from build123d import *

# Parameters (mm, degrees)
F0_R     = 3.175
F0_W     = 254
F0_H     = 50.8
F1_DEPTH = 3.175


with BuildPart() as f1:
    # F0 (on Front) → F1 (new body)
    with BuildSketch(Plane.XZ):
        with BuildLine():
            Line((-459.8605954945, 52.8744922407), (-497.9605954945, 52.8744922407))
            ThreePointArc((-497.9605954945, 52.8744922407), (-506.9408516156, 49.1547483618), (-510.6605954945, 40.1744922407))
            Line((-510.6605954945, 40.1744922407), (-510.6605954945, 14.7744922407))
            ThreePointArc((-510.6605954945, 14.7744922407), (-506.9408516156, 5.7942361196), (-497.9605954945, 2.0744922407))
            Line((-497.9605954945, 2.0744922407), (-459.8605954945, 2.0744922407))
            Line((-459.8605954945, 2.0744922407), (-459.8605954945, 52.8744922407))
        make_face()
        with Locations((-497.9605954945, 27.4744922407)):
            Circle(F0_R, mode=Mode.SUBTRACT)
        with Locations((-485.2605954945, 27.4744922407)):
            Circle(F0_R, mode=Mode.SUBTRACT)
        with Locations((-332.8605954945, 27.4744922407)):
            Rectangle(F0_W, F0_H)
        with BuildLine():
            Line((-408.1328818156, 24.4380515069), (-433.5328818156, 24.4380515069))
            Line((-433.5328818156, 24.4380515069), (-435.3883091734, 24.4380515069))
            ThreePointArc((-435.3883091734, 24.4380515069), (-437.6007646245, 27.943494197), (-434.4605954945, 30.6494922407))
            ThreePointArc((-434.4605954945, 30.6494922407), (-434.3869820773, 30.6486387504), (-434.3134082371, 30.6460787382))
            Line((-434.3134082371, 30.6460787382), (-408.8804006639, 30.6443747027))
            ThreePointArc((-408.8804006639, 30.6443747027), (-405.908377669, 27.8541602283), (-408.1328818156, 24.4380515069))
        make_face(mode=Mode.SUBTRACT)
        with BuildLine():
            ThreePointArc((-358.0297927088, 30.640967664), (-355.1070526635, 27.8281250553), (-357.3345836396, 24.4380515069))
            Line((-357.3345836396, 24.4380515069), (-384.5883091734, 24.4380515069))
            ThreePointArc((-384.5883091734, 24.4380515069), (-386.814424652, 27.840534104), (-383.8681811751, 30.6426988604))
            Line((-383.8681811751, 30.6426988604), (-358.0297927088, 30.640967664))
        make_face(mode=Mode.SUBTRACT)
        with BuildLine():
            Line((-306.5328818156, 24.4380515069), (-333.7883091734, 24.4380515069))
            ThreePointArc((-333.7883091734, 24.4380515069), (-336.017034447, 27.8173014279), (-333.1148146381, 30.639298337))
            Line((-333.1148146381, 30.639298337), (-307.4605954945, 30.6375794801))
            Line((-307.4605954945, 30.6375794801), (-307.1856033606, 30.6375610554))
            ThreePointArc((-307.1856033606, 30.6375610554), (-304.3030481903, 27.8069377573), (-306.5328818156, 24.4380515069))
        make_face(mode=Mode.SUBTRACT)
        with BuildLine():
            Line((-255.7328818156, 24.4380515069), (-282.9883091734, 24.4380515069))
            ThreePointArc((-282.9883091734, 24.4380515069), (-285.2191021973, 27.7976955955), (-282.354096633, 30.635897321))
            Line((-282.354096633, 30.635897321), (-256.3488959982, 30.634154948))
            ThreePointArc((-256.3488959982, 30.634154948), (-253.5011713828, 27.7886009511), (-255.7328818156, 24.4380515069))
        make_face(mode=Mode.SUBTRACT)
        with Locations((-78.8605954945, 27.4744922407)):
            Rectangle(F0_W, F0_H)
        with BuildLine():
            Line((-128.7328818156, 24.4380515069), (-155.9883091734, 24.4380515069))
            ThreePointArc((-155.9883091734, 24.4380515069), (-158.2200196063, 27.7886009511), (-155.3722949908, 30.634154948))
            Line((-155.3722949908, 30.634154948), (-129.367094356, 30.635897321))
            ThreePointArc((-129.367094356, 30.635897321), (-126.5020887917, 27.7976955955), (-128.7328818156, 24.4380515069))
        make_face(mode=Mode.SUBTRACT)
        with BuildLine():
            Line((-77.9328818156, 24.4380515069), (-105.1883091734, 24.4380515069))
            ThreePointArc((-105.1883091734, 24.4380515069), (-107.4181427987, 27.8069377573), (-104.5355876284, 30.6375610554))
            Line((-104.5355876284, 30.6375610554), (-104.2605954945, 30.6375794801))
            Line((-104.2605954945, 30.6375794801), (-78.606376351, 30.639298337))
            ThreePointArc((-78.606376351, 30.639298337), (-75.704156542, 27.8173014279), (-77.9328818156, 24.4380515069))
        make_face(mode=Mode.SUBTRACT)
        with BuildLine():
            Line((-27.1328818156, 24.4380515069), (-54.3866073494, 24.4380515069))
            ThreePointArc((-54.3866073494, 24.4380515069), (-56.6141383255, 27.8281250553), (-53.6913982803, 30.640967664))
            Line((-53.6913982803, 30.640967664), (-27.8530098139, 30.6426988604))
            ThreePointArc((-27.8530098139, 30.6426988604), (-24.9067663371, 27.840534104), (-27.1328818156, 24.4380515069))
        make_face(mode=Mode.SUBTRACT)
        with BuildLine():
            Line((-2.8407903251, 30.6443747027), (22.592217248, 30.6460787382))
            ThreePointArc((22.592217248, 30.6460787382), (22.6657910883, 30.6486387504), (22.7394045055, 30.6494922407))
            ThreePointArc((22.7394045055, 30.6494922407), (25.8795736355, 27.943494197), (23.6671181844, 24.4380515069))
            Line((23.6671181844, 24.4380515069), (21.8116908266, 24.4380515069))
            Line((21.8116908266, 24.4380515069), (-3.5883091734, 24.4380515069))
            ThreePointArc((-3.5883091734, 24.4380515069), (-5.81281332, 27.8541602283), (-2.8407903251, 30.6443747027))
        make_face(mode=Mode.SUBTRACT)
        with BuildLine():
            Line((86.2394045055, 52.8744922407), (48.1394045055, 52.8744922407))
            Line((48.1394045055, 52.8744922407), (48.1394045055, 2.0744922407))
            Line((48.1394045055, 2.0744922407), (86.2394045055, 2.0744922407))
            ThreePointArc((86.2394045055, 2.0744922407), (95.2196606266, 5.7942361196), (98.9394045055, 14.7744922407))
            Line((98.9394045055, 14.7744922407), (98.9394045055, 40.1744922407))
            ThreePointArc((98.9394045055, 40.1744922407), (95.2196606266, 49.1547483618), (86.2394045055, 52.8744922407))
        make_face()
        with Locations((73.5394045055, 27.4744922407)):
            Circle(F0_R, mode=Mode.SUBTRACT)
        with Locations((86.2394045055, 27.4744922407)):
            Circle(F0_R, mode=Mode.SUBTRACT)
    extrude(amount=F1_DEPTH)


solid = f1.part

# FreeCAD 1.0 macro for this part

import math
import FreeCAD as App
import Part
import Sketcher

V = App.Vector
Q = App.Units.Quantity

doc = App.newDocument("Part")
body = doc.addObject("PartDesign::Body", "Body")

sketch1 = body.newObject("Sketcher::SketchObject", "Sketch")
sketch1.AttachmentSupport = (doc.getObject("XZ_Plane"), [""])
sketch1.MapMode = "FlatFace"
sketch1.addGeometry(Part.ArcOfCircle(Part.Circle(V(-497.96, 40.17, 0), V(0, 0, 1), 12.7), math.radians(90), math.radians(180)), False)
sketch1.addGeometry(Part.LineSegment(V(-510.66, 40.17, 0), V(-510.66, 14.77, 0)), False)
sketch1.addGeometry(Part.ArcOfCircle(Part.Circle(V(-497.96, 14.77, 0), V(0, 0, 1), 12.7), math.radians(180), math.radians(270)), False)
sketch1.addGeometry(Part.LineSegment(V(-497.96, 2.07, 0), V(86.24, 2.07, 0)), False)
sketch1.addGeometry(Part.ArcOfCircle(Part.Circle(V(86.24, 14.77, 0), V(0, 0, 1), 12.7), math.radians(-90), math.radians(0)), False)
sketch1.addGeometry(Part.LineSegment(V(98.94, 14.77, 0), V(98.94, 40.17, 0)), False)
sketch1.addGeometry(Part.ArcOfCircle(Part.Circle(V(86.24, 40.17, 0), V(0, 0, 1), 12.7), math.radians(0), math.radians(90)), False)
sketch1.addGeometry(Part.LineSegment(V(86.24, 52.87, 0), V(-497.96, 52.87, 0)), False)
sketch1.addGeometry(Part.Circle(V(-497.96, 27.47, 0), V(0, 0, 1), 3.17), False)
sketch1.addGeometry(Part.Circle(V(-485.26, 27.47, 0), V(0, 0, 1), 3.17), False)
sketch1.addGeometry(Part.Circle(V(73.54, 27.47, 0), V(0, 0, 1), 3.17), False)
sketch1.addGeometry(Part.Circle(V(86.24, 27.47, 0), V(0, 0, 1), 3.17), False)
sketch1.addGeometry(Part.ArcOfCircle(Part.Circle(V(-409.06, 27.47, 0), V(0, 0, 1), 3.17), math.radians(-73), math.radians(87)), False)
sketch1.addGeometry(Part.LineSegment(V(-408.13, 24.44, 0), V(-435.39, 24.44, 0)), False)
sketch1.addGeometry(Part.ArcOfCircle(Part.Circle(V(-434.46, 27.47, 0), V(0, 0, 1), 3.17), math.radians(90), math.radians(253)), False)
sketch1.addGeometry(Part.ArcOfCircle(Part.Circle(V(-434.46, 27.47, 0), V(0, 0, 1), 3.17), math.radians(87.34), math.radians(90)), False)
sketch1.addGeometry(Part.LineSegment(V(-434.31, 30.65, 0), V(-408.88, 30.64, 0)), False)
sketch1.addGeometry(Part.LineSegment(V(-383.87, 30.64, 0), V(-358.03, 30.64, 0)), False)
sketch1.addGeometry(Part.ArcOfCircle(Part.Circle(V(-358.26, 27.47, 0), V(0, 0, 1), 3.17), math.radians(-73), math.radians(86)), False)
sketch1.addGeometry(Part.LineSegment(V(-357.33, 24.44, 0), V(-384.59, 24.44, 0)), False)
sketch1.addGeometry(Part.ArcOfCircle(Part.Circle(V(-383.66, 27.47, 0), V(0, 0, 1), 3.17), math.radians(94), math.radians(253)), False)
sketch1.addGeometry(Part.ArcOfCircle(Part.Circle(V(-307.46, 27.47, 0), V(0, 0, 1), 3.17), math.radians(-73), math.radians(85)), False)
sketch1.addGeometry(Part.LineSegment(V(-306.53, 24.44, 0), V(-333.79, 24.44, 0)), False)
sketch1.addGeometry(Part.ArcOfCircle(Part.Circle(V(-332.86, 27.47, 0), V(0, 0, 1), 3.17), math.radians(95), math.radians(253)), False)
sketch1.addGeometry(Part.LineSegment(V(-333.11, 30.64, 0), V(-307.46, 30.64, 0)), False)
sketch1.addGeometry(Part.LineSegment(V(-307.46, 30.64, 0), V(-307.19, 30.64, 0)), False)
sketch1.addGeometry(Part.ArcOfCircle(Part.Circle(V(-256.66, 27.47, 0), V(0, 0, 1), 3.17), math.radians(-73), math.radians(84)), False)
sketch1.addGeometry(Part.LineSegment(V(-255.73, 24.44, 0), V(-282.99, 24.44, 0)), False)
sketch1.addGeometry(Part.ArcOfCircle(Part.Circle(V(-282.06, 27.47, 0), V(0, 0, 1), 3.17), math.radians(95), math.radians(253)), False)
sketch1.addGeometry(Part.LineSegment(V(-282.35, 30.64, 0), V(-256.35, 30.63, 0)), False)
sketch1.addGeometry(Part.ArcOfCircle(Part.Circle(V(-129.66, 27.47, 0), V(0, 0, 1), 3.17), math.radians(-73), math.radians(85)), False)
sketch1.addGeometry(Part.LineSegment(V(-128.73, 24.44, 0), V(-155.99, 24.44, 0)), False)
sketch1.addGeometry(Part.ArcOfCircle(Part.Circle(V(-155.06, 27.47, 0), V(0, 0, 1), 3.17), math.radians(96), math.radians(253)), False)
sketch1.addGeometry(Part.LineSegment(V(-155.37, 30.63, 0), V(-129.37, 30.64, 0)), False)
sketch1.addGeometry(Part.ArcOfCircle(Part.Circle(V(-78.86, 27.47, 0), V(0, 0, 1), 3.17), math.radians(-73), math.radians(85)), False)
sketch1.addGeometry(Part.LineSegment(V(-77.93, 24.44, 0), V(-105.19, 24.44, 0)), False)
sketch1.addGeometry(Part.ArcOfCircle(Part.Circle(V(-104.26, 27.47, 0), V(0, 0, 1), 3.17), math.radians(95), math.radians(253)), False)
sketch1.addGeometry(Part.LineSegment(V(-104.54, 30.64, 0), V(-104.26, 30.64, 0)), False)
sketch1.addGeometry(Part.LineSegment(V(-104.26, 30.64, 0), V(-78.61, 30.64, 0)), False)
sketch1.addGeometry(Part.ArcOfCircle(Part.Circle(V(-28.06, 27.47, 0), V(0, 0, 1), 3.17), math.radians(-73), math.radians(86)), False)
sketch1.addGeometry(Part.LineSegment(V(-27.13, 24.44, 0), V(-54.39, 24.44, 0)), False)
sketch1.addGeometry(Part.ArcOfCircle(Part.Circle(V(-53.46, 27.47, 0), V(0, 0, 1), 3.17), math.radians(94), math.radians(253)), False)
sketch1.addGeometry(Part.LineSegment(V(-53.69, 30.64, 0), V(-27.85, 30.64, 0)), False)
sketch1.addGeometry(Part.ArcOfCircle(Part.Circle(V(-2.66, 27.47, 0), V(0, 0, 1), 3.17), math.radians(93), math.radians(253)), False)
sketch1.addGeometry(Part.LineSegment(V(-2.84, 30.64, 0), V(22.59, 30.65, 0)), False)
sketch1.addGeometry(Part.ArcOfCircle(Part.Circle(V(22.74, 27.47, 0), V(0, 0, 1), 3.17), math.radians(90), math.radians(92.66)), False)
sketch1.addGeometry(Part.ArcOfCircle(Part.Circle(V(22.74, 27.47, 0), V(0, 0, 1), 3.17), math.radians(-73), math.radians(90)), False)
sketch1.addGeometry(Part.LineSegment(V(23.67, 24.44, 0), V(-3.59, 24.44, 0)), False)
sketch1.addConstraint(Sketcher.Constraint("Tangent", 0, 2, 1, 1))
sketch1.addConstraint(Sketcher.Constraint("Tangent", 1, 2, 2, 1))
sketch1.addConstraint(Sketcher.Constraint("Tangent", 2, 2, 3, 1))
sketch1.addConstraint(Sketcher.Constraint("Tangent", 3, 2, 4, 1))
sketch1.addConstraint(Sketcher.Constraint("Tangent", 4, 2, 5, 1))
sketch1.addConstraint(Sketcher.Constraint("Tangent", 5, 2, 6, 1))
sketch1.addConstraint(Sketcher.Constraint("Tangent", 6, 2, 7, 1))
sketch1.addConstraint(Sketcher.Constraint("Tangent", 7, 2, 0, 1))
sketch1.addConstraint(Sketcher.Constraint("Coincident", 12, 1, 13, 1))
sketch1.addConstraint(Sketcher.Constraint("Coincident", 13, 2, 14, 2))
sketch1.addConstraint(Sketcher.Constraint("Tangent", 14, 1, 15, 2))
sketch1.addConstraint(Sketcher.Constraint("Coincident", 15, 1, 16, 1))
sketch1.addConstraint(Sketcher.Constraint("Coincident", 16, 2, 12, 2))
sketch1.addConstraint(Sketcher.Constraint("Coincident", 17, 2, 18, 2))
sketch1.addConstraint(Sketcher.Constraint("Coincident", 18, 1, 19, 1))
sketch1.addConstraint(Sketcher.Constraint("Coincident", 19, 2, 20, 2))
sketch1.addConstraint(Sketcher.Constraint("Coincident", 20, 1, 17, 1))
sketch1.addConstraint(Sketcher.Constraint("Coincident", 21, 1, 22, 1))
sketch1.addConstraint(Sketcher.Constraint("Coincident", 22, 2, 23, 2))
sketch1.addConstraint(Sketcher.Constraint("Coincident", 23, 1, 24, 1))
sketch1.addConstraint(Sketcher.Constraint("Coincident", 24, 2, 25, 1))
sketch1.addConstraint(Sketcher.Constraint("Coincident", 25, 2, 21, 2))
sketch1.addConstraint(Sketcher.Constraint("Coincident", 26, 1, 27, 1))
sketch1.addConstraint(Sketcher.Constraint("Coincident", 27, 2, 28, 2))
sketch1.addConstraint(Sketcher.Constraint("Coincident", 28, 1, 29, 1))
sketch1.addConstraint(Sketcher.Constraint("Coincident", 29, 2, 26, 2))
sketch1.addConstraint(Sketcher.Constraint("Coincident", 30, 1, 31, 1))
sketch1.addConstraint(Sketcher.Constraint("Coincident", 31, 2, 32, 2))
sketch1.addConstraint(Sketcher.Constraint("Coincident", 32, 1, 33, 1))
sketch1.addConstraint(Sketcher.Constraint("Coincident", 33, 2, 30, 2))
sketch1.addConstraint(Sketcher.Constraint("Coincident", 34, 1, 35, 1))
sketch1.addConstraint(Sketcher.Constraint("Coincident", 35, 2, 36, 2))
sketch1.addConstraint(Sketcher.Constraint("Coincident", 36, 1, 37, 1))
sketch1.addConstraint(Sketcher.Constraint("Coincident", 37, 2, 38, 1))
sketch1.addConstraint(Sketcher.Constraint("Coincident", 38, 2, 34, 2))
sketch1.addConstraint(Sketcher.Constraint("Coincident", 39, 1, 40, 1))
sketch1.addConstraint(Sketcher.Constraint("Coincident", 40, 2, 41, 2))
sketch1.addConstraint(Sketcher.Constraint("Coincident", 41, 1, 42, 1))
sketch1.addConstraint(Sketcher.Constraint("Coincident", 42, 2, 39, 2))
sketch1.addConstraint(Sketcher.Constraint("Coincident", 43, 1, 44, 1))
sketch1.addConstraint(Sketcher.Constraint("Coincident", 44, 2, 45, 2))
sketch1.addConstraint(Sketcher.Constraint("Tangent", 45, 1, 46, 2))
sketch1.addConstraint(Sketcher.Constraint("Coincident", 46, 1, 47, 1))
sketch1.addConstraint(Sketcher.Constraint("Coincident", 47, 2, 43, 2))
sketch1.addConstraint(Sketcher.Constraint("Vertical", 1))
sketch1.addConstraint(Sketcher.Constraint("Horizontal", 3))
sketch1.addConstraint(Sketcher.Constraint("Vertical", 5))
sketch1.addConstraint(Sketcher.Constraint("Horizontal", 7))
sketch1.addConstraint(Sketcher.Constraint("Horizontal", 13))
sketch1.addConstraint(Sketcher.Constraint("Horizontal", 19))
sketch1.addConstraint(Sketcher.Constraint("Horizontal", 22))
sketch1.addConstraint(Sketcher.Constraint("Horizontal", 27))
sketch1.addConstraint(Sketcher.Constraint("Horizontal", 31))
sketch1.addConstraint(Sketcher.Constraint("Horizontal", 35))
sketch1.addConstraint(Sketcher.Constraint("Horizontal", 40))
sketch1.addConstraint(Sketcher.Constraint("Horizontal", 47))
sketch1.addConstraint(Sketcher.Constraint("Equal", 0, 2))
sketch1.addConstraint(Sketcher.Constraint("Equal", 2, 4))
sketch1.addConstraint(Sketcher.Constraint("Equal", 4, 6))
sketch1.addConstraint(Sketcher.Constraint("Equal", 8, 9))
sketch1.addConstraint(Sketcher.Constraint("Equal", 9, 10))
sketch1.addConstraint(Sketcher.Constraint("Equal", 10, 11))
sketch1.addConstraint(Sketcher.Constraint("Equal", 11, 12))
sketch1.addConstraint(Sketcher.Constraint("Equal", 12, 14))
sketch1.addConstraint(Sketcher.Constraint("Equal", 14, 15))
sketch1.addConstraint(Sketcher.Constraint("Equal", 15, 18))
sketch1.addConstraint(Sketcher.Constraint("Equal", 18, 20))
sketch1.addConstraint(Sketcher.Constraint("Equal", 20, 21))
sketch1.addConstraint(Sketcher.Constraint("Equal", 21, 23))
sketch1.addConstraint(Sketcher.Constraint("Equal", 23, 26))
sketch1.addConstraint(Sketcher.Constraint("Equal", 26, 28))
sketch1.addConstraint(Sketcher.Constraint("Equal", 28, 30))
sketch1.addConstraint(Sketcher.Constraint("Equal", 30, 32))
sketch1.addConstraint(Sketcher.Constraint("Equal", 32, 34))
sketch1.addConstraint(Sketcher.Constraint("Equal", 34, 36))
sketch1.addConstraint(Sketcher.Constraint("Equal", 36, 39))
sketch1.addConstraint(Sketcher.Constraint("Equal", 39, 41))
sketch1.addConstraint(Sketcher.Constraint("Equal", 41, 43))
sketch1.addConstraint(Sketcher.Constraint("Equal", 43, 45))
sketch1.addConstraint(Sketcher.Constraint("Equal", 45, 46))
sketch1.addConstraint(Sketcher.Constraint("Parallel", 16, 17))
sketch1.addConstraint(Sketcher.Constraint("Parallel", 17, 24))
sketch1.addConstraint(Sketcher.Constraint("Parallel", 24, 25))
sketch1.addConstraint(Sketcher.Constraint("Parallel", 25, 29))
sketch1.addConstraint(Sketcher.Constraint("Parallel", 33, 37))
sketch1.addConstraint(Sketcher.Constraint("Parallel", 37, 38))
sketch1.addConstraint(Sketcher.Constraint("Parallel", 38, 42))
sketch1.addConstraint(Sketcher.Constraint("Parallel", 42, 44))
sketch1.addConstraint(Sketcher.Constraint("Horizontal", 8, 3, 9, 3))
sketch1.addConstraint(Sketcher.Constraint("Horizontal", 9, 3, 10, 3))
sketch1.addConstraint(Sketcher.Constraint("Horizontal", 10, 3, 11, 3))
sketch1.addConstraint(Sketcher.Constraint("Horizontal", 11, 3, 12, 3))
sketch1.addConstraint(Sketcher.Constraint("Horizontal", 12, 3, 14, 3))
sketch1.addConstraint(Sketcher.Constraint("Horizontal", 15, 3, 18, 3))
sketch1.addConstraint(Sketcher.Constraint("Horizontal", 18, 3, 20, 3))
sketch1.addConstraint(Sketcher.Constraint("Horizontal", 20, 3, 21, 3))
sketch1.addConstraint(Sketcher.Constraint("Horizontal", 21, 3, 23, 3))
sketch1.addConstraint(Sketcher.Constraint("Horizontal", 23, 3, 26, 3))
sketch1.addConstraint(Sketcher.Constraint("Horizontal", 26, 3, 28, 3))
sketch1.addConstraint(Sketcher.Constraint("Horizontal", 28, 3, 30, 3))
sketch1.addConstraint(Sketcher.Constraint("Horizontal", 30, 3, 32, 3))
sketch1.addConstraint(Sketcher.Constraint("Horizontal", 32, 3, 34, 3))
sketch1.addConstraint(Sketcher.Constraint("Horizontal", 34, 3, 36, 3))
sketch1.addConstraint(Sketcher.Constraint("Horizontal", 36, 3, 39, 3))
sketch1.addConstraint(Sketcher.Constraint("Horizontal", 39, 3, 41, 3))
sketch1.addConstraint(Sketcher.Constraint("Horizontal", 41, 3, 43, 3))
sketch1.addConstraint(Sketcher.Constraint("Horizontal", 43, 3, 45, 3))
sketch1.addConstraint(Sketcher.Constraint("Horizontal", 13, 2, 18, 1))
sketch1.addConstraint(Sketcher.Constraint("Horizontal", 19, 2, 21, 1))
sketch1.addConstraint(Sketcher.Constraint("Horizontal", 22, 2, 26, 1))
sketch1.addConstraint(Sketcher.Constraint("Horizontal", 27, 2, 30, 1))
sketch1.addConstraint(Sketcher.Constraint("Horizontal", 29, 2, 32, 1))
sketch1.addConstraint(Sketcher.Constraint("Horizontal", 28, 1, 33, 2))
sketch1.addConstraint(Sketcher.Constraint("Horizontal", 31, 2, 34, 1))
sketch1.addConstraint(Sketcher.Constraint("Horizontal", 25, 2, 36, 1))
sketch1.addConstraint(Sketcher.Constraint("Horizontal", 35, 2, 39, 1))
sketch1.addConstraint(Sketcher.Constraint("Horizontal", 17, 2, 41, 1))
sketch1.addConstraint(Sketcher.Constraint("Horizontal", 16, 2, 43, 1))
sketch1.addConstraint(Sketcher.Constraint("Horizontal", 40, 2, 46, 1))
sketch1.addConstraint(Sketcher.Constraint("Vertical", 2, 3, 8, 3))
sketch1.addConstraint(Sketcher.Constraint("Vertical", 6, 3, 11, 3))
sketch1.addConstraint(Sketcher.Constraint("Vertical", 15, 3, 14, 1))
sketch1.addConstraint(Sketcher.Constraint("Vertical", 21, 3, 24, 2))
sketch1.addConstraint(Sketcher.Constraint("Vertical", 36, 3, 37, 2))
sketch1.addConstraint(Sketcher.Constraint("Vertical", 46, 3, 45, 1))
sketch1.addConstraint(Sketcher.Constraint("Equal", 13, 22))
sketch1.addConstraint(Sketcher.Constraint("Equal", 22, 27))
sketch1.addConstraint(Sketcher.Constraint("Equal", 27, 31))
sketch1.addConstraint(Sketcher.Constraint("Equal", 31, 35))
sketch1.addConstraint(Sketcher.Constraint("Equal", 19, 40))
sketch1.addConstraint(Sketcher.Constraint("Equal", 35, 47))
sketch1.addConstraint(Sketcher.Constraint("Radius", 0, Q("0.5 in")))
sketch1.addConstraint(Sketcher.Constraint("Diameter", 8, Q("0.25 in")))
sketch1.addConstraint(Sketcher.Constraint("DistanceX", 3, 1, 3, 2, Q("23 in")))
sketch1.addConstraint(Sketcher.Constraint("DistanceY", 1, 2, 1, 1, Q("1 in")))
sketch1.addConstraint(Sketcher.Constraint("Distance", 29, 26.005201))
sketch1.addConstraint(Sketcher.Constraint("DistanceX", 16, 2, -1, 1, 408.880401))
sketch1.addConstraint(Sketcher.Constraint("DistanceY", -1, 1, 20, 1, 30.642699))
sketch1.addConstraint(Sketcher.Constraint("DistanceY", -1, 1, 23, 1, 30.639298))
sketch1.addConstraint(Sketcher.Constraint("DistanceX", 41, 1, -1, 1, 53.691398))
sketch1.addConstraint(Sketcher.Constraint("Distance", 17, 25.838389))
sketch1.addConstraint(Sketcher.Constraint("Distance", 24, 25.654219))
sketch1.addConstraint(Sketcher.Constraint("DistanceX", 13, 2, 13, 1, 27.255427))
sketch1.addConstraint(Sketcher.Constraint("DistanceX", 19, 2, 19, 1, 27.253726))
sketch1.addConstraint(Sketcher.Constraint("DistanceX", 12, 1, -1, 1, 408.132882))
sketch1.addConstraint(Sketcher.Constraint("DistanceY", -1, 1, 12, 1, 24.438052))
sketch1.addConstraint(Sketcher.Constraint("DistanceX", 19, 2, -1, 1, 384.588309))
sketch1.addConstraint(Sketcher.Constraint("DistanceX", 21, 1, -1, 1, 306.532882))
sketch1.addConstraint(Sketcher.Constraint("DistanceX", 26, 1, -1, 1, 255.732882))
sketch1.addConstraint(Sketcher.Constraint("DistanceX", 30, 1, -1, 1, 128.732882))
sketch1.addConstraint(Sketcher.Constraint("DistanceX", 34, 1, -1, 1, 77.932882))
sketch1.addConstraint(Sketcher.Constraint("DistanceX", 43, 1, -1, 1, 2.84079))
sketch1.addConstraint(Sketcher.Constraint("DistanceX", 0, 3, -1, 1, 497.960595))
sketch1.addConstraint(Sketcher.Constraint("DistanceY", -1, 1, 0, 3, 40.174492))
sketch1.addConstraint(Sketcher.Constraint("DistanceX", 9, 3, -1, 1, 485.260595))
sketch1.addConstraint(Sketcher.Constraint("DistanceX", -1, 1, 10, 3, 73.539405))
pad1 = body.newObject("PartDesign::Pad", "Pad")
pad1.Profile = sketch1
pad1.Length = Q("0.125 in")

doc.recompute()
